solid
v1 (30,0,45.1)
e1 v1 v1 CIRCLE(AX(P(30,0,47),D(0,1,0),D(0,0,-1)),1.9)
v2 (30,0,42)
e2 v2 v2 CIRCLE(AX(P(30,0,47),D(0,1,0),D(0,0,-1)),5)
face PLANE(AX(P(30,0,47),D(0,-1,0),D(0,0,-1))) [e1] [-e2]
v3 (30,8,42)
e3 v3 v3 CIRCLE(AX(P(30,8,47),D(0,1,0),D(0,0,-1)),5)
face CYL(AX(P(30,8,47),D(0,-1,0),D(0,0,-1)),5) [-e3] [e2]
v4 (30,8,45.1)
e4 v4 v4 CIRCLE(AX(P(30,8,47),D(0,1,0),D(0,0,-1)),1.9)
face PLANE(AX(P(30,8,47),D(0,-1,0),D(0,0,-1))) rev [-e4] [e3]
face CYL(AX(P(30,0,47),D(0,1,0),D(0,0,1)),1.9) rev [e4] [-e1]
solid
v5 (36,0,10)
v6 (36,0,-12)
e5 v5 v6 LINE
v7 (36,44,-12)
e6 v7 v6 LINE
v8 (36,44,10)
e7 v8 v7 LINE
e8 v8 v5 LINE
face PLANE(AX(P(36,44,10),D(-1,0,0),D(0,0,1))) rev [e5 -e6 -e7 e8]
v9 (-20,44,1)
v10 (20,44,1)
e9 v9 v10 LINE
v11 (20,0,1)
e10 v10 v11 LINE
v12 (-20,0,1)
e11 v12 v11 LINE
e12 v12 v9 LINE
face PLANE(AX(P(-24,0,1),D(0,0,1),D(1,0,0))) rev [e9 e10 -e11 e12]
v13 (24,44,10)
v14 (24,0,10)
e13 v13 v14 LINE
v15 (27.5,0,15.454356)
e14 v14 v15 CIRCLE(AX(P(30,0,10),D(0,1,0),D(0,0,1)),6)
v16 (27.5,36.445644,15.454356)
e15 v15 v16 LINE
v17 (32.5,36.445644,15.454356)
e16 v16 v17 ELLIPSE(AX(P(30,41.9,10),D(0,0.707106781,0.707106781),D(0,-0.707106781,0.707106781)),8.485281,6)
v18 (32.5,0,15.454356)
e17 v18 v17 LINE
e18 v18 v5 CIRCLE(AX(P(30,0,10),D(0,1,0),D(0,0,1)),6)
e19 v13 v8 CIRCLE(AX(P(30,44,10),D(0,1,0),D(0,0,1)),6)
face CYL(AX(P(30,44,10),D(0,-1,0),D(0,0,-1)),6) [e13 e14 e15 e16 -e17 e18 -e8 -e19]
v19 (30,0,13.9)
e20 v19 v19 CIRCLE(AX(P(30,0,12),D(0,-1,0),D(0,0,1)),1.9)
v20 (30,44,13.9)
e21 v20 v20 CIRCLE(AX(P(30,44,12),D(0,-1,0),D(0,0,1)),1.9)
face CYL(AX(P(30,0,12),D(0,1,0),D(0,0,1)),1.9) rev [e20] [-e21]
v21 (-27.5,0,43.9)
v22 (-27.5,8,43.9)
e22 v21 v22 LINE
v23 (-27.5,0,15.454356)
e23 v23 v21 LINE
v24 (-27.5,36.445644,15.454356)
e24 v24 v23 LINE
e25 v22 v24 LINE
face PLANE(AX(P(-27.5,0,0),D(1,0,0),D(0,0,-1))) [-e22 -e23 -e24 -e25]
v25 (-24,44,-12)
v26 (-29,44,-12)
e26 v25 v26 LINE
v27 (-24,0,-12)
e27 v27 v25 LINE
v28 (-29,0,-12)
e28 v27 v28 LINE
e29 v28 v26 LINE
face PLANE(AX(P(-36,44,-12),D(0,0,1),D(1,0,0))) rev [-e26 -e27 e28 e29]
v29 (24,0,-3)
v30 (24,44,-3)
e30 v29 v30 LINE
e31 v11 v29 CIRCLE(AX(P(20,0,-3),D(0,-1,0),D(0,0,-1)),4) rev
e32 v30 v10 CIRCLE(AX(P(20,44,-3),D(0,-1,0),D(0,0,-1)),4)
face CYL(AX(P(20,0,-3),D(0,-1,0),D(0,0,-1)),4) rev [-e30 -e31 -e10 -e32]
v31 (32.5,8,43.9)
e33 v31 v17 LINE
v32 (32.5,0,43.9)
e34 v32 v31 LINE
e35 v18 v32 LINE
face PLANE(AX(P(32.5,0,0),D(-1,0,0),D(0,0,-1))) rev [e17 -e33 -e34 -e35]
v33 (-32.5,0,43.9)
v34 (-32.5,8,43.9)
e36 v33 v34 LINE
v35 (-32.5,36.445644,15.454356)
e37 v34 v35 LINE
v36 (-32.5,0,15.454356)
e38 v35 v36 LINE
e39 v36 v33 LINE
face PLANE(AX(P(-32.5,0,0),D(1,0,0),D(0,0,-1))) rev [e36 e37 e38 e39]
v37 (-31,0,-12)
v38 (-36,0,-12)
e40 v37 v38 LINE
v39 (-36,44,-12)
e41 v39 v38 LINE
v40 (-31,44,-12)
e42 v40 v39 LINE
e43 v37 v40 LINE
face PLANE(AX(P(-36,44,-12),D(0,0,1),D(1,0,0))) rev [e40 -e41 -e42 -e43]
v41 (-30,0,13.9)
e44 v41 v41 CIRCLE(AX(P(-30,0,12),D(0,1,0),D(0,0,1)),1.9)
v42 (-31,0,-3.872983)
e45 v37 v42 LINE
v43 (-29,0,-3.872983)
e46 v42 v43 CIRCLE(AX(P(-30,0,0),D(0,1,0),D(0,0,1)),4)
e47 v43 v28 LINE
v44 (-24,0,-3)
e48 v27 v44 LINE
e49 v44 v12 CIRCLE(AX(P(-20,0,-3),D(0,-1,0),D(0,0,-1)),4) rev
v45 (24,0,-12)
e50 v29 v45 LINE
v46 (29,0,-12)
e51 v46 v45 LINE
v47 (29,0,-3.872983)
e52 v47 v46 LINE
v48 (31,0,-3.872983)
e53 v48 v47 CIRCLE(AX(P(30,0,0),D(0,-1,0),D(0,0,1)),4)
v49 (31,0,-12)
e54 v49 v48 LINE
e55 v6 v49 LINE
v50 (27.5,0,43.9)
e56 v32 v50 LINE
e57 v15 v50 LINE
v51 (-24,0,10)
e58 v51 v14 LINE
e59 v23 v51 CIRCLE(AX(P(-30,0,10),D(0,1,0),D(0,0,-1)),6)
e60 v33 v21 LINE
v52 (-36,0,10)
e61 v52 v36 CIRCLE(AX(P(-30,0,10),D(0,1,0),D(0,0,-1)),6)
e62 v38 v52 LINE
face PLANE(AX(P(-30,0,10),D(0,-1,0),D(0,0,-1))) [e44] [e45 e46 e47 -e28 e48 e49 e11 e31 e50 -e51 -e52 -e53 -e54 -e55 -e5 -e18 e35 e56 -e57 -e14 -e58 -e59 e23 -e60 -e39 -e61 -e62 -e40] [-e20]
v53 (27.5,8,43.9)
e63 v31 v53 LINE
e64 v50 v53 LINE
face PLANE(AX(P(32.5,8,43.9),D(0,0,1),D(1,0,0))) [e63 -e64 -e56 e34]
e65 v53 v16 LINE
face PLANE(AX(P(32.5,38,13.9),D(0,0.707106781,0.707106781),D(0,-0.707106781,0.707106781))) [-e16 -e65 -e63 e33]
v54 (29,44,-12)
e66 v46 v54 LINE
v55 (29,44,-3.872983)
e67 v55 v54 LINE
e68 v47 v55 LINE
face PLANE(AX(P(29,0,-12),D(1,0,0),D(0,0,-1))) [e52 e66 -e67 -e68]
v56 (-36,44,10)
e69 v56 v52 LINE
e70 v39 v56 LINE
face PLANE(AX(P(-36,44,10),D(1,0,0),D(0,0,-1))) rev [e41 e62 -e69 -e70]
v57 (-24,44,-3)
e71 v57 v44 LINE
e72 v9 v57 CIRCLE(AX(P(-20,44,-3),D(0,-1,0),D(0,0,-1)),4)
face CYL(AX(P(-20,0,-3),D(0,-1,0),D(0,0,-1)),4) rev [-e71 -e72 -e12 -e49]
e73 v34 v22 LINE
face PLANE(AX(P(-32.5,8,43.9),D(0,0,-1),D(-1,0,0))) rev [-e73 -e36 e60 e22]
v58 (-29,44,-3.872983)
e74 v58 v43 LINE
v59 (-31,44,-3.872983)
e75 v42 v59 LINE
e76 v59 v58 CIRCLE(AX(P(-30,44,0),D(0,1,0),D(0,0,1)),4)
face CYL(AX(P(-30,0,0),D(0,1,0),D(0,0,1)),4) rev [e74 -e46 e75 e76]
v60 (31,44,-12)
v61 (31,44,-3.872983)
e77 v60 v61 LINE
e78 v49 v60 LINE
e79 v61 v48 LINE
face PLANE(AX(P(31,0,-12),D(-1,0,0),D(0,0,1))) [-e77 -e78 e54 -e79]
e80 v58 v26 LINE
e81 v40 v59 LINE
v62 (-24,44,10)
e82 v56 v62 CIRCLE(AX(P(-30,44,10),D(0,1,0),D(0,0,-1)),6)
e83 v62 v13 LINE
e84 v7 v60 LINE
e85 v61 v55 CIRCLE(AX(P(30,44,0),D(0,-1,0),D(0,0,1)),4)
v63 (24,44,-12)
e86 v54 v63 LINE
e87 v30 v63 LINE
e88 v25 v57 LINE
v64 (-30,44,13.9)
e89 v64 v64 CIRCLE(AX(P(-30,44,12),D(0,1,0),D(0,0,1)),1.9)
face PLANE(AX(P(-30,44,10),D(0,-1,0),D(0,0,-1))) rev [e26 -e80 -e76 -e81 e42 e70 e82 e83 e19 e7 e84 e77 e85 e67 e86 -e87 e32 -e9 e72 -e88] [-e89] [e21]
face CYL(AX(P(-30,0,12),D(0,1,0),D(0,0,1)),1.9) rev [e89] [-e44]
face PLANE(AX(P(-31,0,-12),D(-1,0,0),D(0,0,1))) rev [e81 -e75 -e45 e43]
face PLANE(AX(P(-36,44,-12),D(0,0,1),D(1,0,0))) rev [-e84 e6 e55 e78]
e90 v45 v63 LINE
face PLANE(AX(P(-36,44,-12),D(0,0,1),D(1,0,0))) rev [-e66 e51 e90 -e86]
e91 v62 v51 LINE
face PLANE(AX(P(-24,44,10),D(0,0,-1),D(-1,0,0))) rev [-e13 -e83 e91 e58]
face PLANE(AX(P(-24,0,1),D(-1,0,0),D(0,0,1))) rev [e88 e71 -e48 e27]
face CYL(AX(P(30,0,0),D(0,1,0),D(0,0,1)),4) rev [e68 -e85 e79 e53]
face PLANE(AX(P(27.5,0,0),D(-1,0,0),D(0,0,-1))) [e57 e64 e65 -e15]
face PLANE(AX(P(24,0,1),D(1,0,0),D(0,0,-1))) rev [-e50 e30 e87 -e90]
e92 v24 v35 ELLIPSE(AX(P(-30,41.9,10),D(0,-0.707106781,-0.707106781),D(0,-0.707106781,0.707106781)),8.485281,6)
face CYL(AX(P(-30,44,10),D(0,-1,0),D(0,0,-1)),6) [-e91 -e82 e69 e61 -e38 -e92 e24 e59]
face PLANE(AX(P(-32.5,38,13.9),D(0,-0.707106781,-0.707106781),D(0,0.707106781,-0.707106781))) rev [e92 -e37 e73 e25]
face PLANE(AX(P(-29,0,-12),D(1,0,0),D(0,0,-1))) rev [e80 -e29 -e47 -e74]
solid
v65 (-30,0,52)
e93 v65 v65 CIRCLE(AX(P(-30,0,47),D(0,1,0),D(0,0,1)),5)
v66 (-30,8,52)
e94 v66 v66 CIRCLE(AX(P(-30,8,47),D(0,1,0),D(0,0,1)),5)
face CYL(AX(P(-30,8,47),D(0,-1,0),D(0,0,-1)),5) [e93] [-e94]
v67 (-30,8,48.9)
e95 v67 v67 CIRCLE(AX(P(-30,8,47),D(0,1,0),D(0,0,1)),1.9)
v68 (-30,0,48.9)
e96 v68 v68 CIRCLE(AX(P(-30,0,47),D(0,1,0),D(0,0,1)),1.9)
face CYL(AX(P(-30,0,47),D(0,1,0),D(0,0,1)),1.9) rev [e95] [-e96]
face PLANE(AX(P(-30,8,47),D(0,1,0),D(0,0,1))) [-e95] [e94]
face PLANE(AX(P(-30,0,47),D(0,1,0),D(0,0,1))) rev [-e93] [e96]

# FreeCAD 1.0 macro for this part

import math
import FreeCAD as App
import Part
import Sketcher
Q = App.Units.Quantity


def edges_at(feature, points):
    """Names of the edges that pass closest to the given points."""
    edges = feature.Shape.Edges
    near = lambda p: min(range(len(edges)), key=lambda i: edges[i].distToShape(Part.Vertex(*p))[0])
    return sorted({f"Edge{near(p) + 1}" for p in points})


def add_polygon(sketch, points):
    """Adds a closed chain of lines whose ends are joined by coincident constraints."""
    first, n = sketch.GeometryCount, len(points)
    for a, b in zip(points, points[1:] + points[:1]):
        sketch.addGeometry(Part.LineSegment(App.Vector(*a, 0), App.Vector(*b, 0)), False)
    for i in range(n):
        sketch.addConstraint(Sketcher.Constraint("Coincident", first + i, 2, first + (i + 1) % n, 1))

doc = App.newDocument("Part")
body = doc.addObject("PartDesign::Body", "Body")

# Sketch on XZ plane
sketch1 = doc.addObject("Sketcher::SketchObject", "Sketch")
body.addObject(sketch1)
sketch1.AttachmentSupport = (doc.XZ_Plane, [""])
sketch1.MapMode = "FlatFace"
sketch1.addGeometry([
    Part.LineSegment(App.Vector(-24, 10, 0), App.Vector(24, 10, 0)),  # 0
    Part.ArcOfCircle(Part.Circle(App.Vector(30, 10, 0), App.Vector(0, 0, 1), 6), math.radians(0), math.radians(180)),  # 1
    Part.LineSegment(App.Vector(36, 10, 0), App.Vector(36, -12, 0)),  # 2
    Part.LineSegment(App.Vector(36, -12, 0), App.Vector(-36, -12, 0)),  # 3
    Part.LineSegment(App.Vector(-36, -12, 0), App.Vector(-36, 10, 0)),  # 4
    Part.ArcOfCircle(Part.Circle(App.Vector(-30, 10, 0), App.Vector(0, 0, 1), 6), math.radians(0), math.radians(180)),  # 5
], False)
sketch1.addConstraint([
    Sketcher.Constraint("Coincident", 0, 2, 1, 2),
    Sketcher.Constraint("Tangent", 1, 1, 2, 1),
    Sketcher.Constraint("Coincident", 2, 2, 3, 1),
    Sketcher.Constraint("Coincident", 3, 2, 4, 1),
    Sketcher.Constraint("Tangent", 4, 2, 5, 2),
    Sketcher.Constraint("Coincident", 5, 1, 0, 1),
    Sketcher.Constraint("Horizontal", 0),
    Sketcher.Constraint("Vertical", 2),
    Sketcher.Constraint("Horizontal", 3),
    Sketcher.Constraint("Vertical", 4),
    Sketcher.Constraint("Equal", 1, 5),
    Sketcher.Constraint("Symmetric", 1, 3, 5, 3, -2),
    Sketcher.Constraint("Horizontal", 5, 3, 0, 2),
    Sketcher.Constraint("Radius", 1, Q("6 mm")),
    Sketcher.Constraint("DistanceX", 0, 1, 0, 2, Q("48 mm")),
    Sketcher.Constraint("DistanceY", 2, 2, 2, 1, Q("22 mm")),
    Sketcher.Constraint("DistanceY", -1, 1, 1, 3, Q("10 mm")),
])
pad1 = doc.addObject("PartDesign::Pad", "Pad")
body.addObject(pad1)
pad1.Profile = sketch1
pad1.Length = 44
pad1.Reversed = True

# Sketch on XZ plane
sketch2 = doc.addObject("Sketcher::SketchObject", "Sketch001")
body.addObject(sketch2)
sketch2.AttachmentSupport = (doc.XZ_Plane, [""])
sketch2.MapMode = "FlatFace"
sketch2.AttachmentOffset = App.Placement(App.Vector(0, 0, -44), App.Rotation())
sketch2.addGeometry([
    Part.Circle(App.Vector(-30, 0, 0), App.Vector(0, 0, 1), 4),
    Part.Circle(App.Vector(-30, 12, 0), App.Vector(0, 0, 1), 1.9),
], False)
sketch2.addConstraint([
    Sketcher.Constraint("PointOnObject", 0, 3, -1),
    Sketcher.Constraint("Vertical", 0, 3, 1, 3),
    Sketcher.Constraint("Diameter", 0, Q("8 mm")),
    Sketcher.Constraint("Diameter", 1, Q("3.8 mm")),
    Sketcher.Constraint("DistanceX", 0, 3, -1, 1, Q("30 mm")),
    Sketcher.Constraint("DistanceY", -1, 1, 1, 3, Q("12 mm")),
])
pocket1 = doc.addObject("PartDesign::Pocket", "Pocket")
body.addObject(pocket1)
pocket1.Profile = sketch2
pocket1.Type = "ThroughAll"
pocket1.Reversed = True

# Sketch on XZ plane
sketch3 = doc.addObject("Sketcher::SketchObject", "Sketch002")
body.addObject(sketch3)
sketch3.AttachmentSupport = (doc.XZ_Plane, [""])
sketch3.MapMode = "FlatFace"
sketch3.AttachmentOffset = App.Placement(App.Vector(0, 0, -44), App.Rotation())
add_polygon(sketch3, [(-31, -12), (-31, 0), (-29, 0), (-29, -12)])  # lines 0-3
sketch3.addConstraint([
    Sketcher.Constraint("Vertical", 0),
    Sketcher.Constraint("Horizontal", 1),
    Sketcher.Constraint("Vertical", 2),
    Sketcher.Constraint("Horizontal", 3),
    Sketcher.Constraint("PointOnObject", 0, 2, -1),
    Sketcher.Constraint("DistanceX", 1, 1, 1, 2, Q("2 mm")),
    Sketcher.Constraint("DistanceY", 0, 1, 0, 2, Q("12 mm")),
    Sketcher.Constraint("DistanceX", 0, 2, -1, 1, Q("31 mm")),
])
pocket2 = doc.addObject("PartDesign::Pocket", "Pocket001")
body.addObject(pocket2)
pocket2.Profile = sketch3
pocket2.Type = "ThroughAll"
pocket2.Reversed = True
doc.recompute()

mirrored = doc.addObject("PartDesign::Mirrored", "Mirrored")
body.addObject(mirrored)
mirrored.Originals = [pocket1, pocket2]
mirrored.MirrorPlane = (doc.YZ_Plane, [""])
body.Tip = mirrored

# Sketch on XZ plane
sketch4 = doc.addObject("Sketcher::SketchObject", "Sketch003")
body.addObject(sketch4)
sketch4.AttachmentSupport = (doc.XZ_Plane, [""])
sketch4.MapMode = "FlatFace"
sketch4.AttachmentOffset = App.Placement(App.Vector(0, 0, -44), App.Rotation())
add_polygon(sketch4, [(-24, -12), (-24, 1), (24, 1), (24, -12)])  # lines 0-3
sketch4.addConstraint([
    Sketcher.Constraint("Vertical", 0),
    Sketcher.Constraint("Horizontal", 1),
    Sketcher.Constraint("Vertical", 2),
    Sketcher.Constraint("Horizontal", 3),
    Sketcher.Constraint("DistanceX", 1, 1, 1, 2, Q("48 mm")),
    Sketcher.Constraint("DistanceY", 0, 1, 0, 2, Q("13 mm")),
    Sketcher.Constraint("DistanceX", 0, 2, -1, 1, Q("24 mm")),
    Sketcher.Constraint("DistanceY", -1, 1, 0, 2, Q("1 mm")),
])
pocket3 = doc.addObject("PartDesign::Pocket", "Pocket002")
body.addObject(pocket3)
pocket3.Profile = sketch4
pocket3.Type = "ThroughAll"
pocket3.Reversed = True
doc.recompute()

fillet = doc.addObject("PartDesign::Fillet", "Fillet")
body.addObject(fillet)
fillet.Base = (pocket3, edges_at(pocket3, [(24, 22, 1), (-24, 22, 1)]))
fillet.Radius = 4

# Sketch on YZ plane
sketch5 = doc.addObject("Sketcher::SketchObject", "Sketch004")
body.addObject(sketch5)
sketch5.AttachmentSupport = (doc.YZ_Plane, [""])
sketch5.MapMode = "FlatFace"
sketch5.AttachmentOffset = App.Placement(App.Vector(0, 0, -30), App.Rotation())
add_polygon(sketch5, [(0, 14), (0, 44), (8, 44), (38, 14)])  # lines 0-3
sketch5.addConstraint([
    Sketcher.Constraint("Vertical", 0),
    Sketcher.Constraint("Horizontal", 1),
    Sketcher.Constraint("Horizontal", 3),
    Sketcher.Constraint("PointOnObject", 0, 2, -2),
    Sketcher.Constraint("DistanceX", 1, 1, 1, 2, Q("8 mm")),
    Sketcher.Constraint("DistanceX", 3, 2, 3, 1, Q("38 mm")),
    Sketcher.Constraint("DistanceY", 0, 1, 0, 2, Q("30 mm")),
    Sketcher.Constraint("DistanceY", -1, 1, 0, 2, Q("43.9 mm")),
])
pad2 = doc.addObject("PartDesign::Pad", "Pad001")
body.addObject(pad2)
pad2.Profile = sketch5
pad2.Length = 5
pad2.Midplane = True
doc.recompute()

mirrored2 = doc.addObject("PartDesign::Mirrored", "Mirrored001")
body.addObject(mirrored2)
mirrored2.Originals = [pad2]
mirrored2.MirrorPlane = (doc.YZ_Plane, [""])
body.Tip = mirrored2
body2 = doc.addObject("PartDesign::Body", "Body001")

# Sketch on XZ plane
sketch6 = doc.addObject("Sketcher::SketchObject", "Sketch005")
body2.addObject(sketch6)
sketch6.AttachmentSupport = (doc.getObject("XZ_Plane001"), [""])
sketch6.MapMode = "FlatFace"
sketch6.addGeometry(Part.Circle(App.Vector(-30, 47, 0), App.Vector(0, 0, 1), 5), False)
sketch6.addConstraint([
    Sketcher.Constraint("Diameter", 0, Q("10 mm")),
    Sketcher.Constraint("DistanceX", 0, 3, -1, 1, Q("30 mm")),
    Sketcher.Constraint("DistanceY", -1, 1, 0, 3, Q("47 mm")),
])
pad3 = doc.addObject("PartDesign::Pad", "Pad002")
body2.addObject(pad3)
pad3.Profile = sketch6
pad3.Length = 8
pad3.Reversed = True
body3 = doc.addObject("PartDesign::Body", "Body002")

# Sketch on XZ plane
sketch7 = doc.addObject("Sketcher::SketchObject", "Sketch006")
body3.addObject(sketch7)
sketch7.AttachmentSupport = (doc.getObject("XZ_Plane002"), [""])
sketch7.MapMode = "FlatFace"
sketch7.addGeometry(Part.Circle(App.Vector(30, 47, 0), App.Vector(0, 0, 1), 5), False)
sketch7.addConstraint([
    Sketcher.Constraint("Diameter", 0, Q("10 mm")),
    Sketcher.Constraint("DistanceX", -1, 1, 0, 3, Q("30 mm")),
    Sketcher.Constraint("DistanceY", -1, 1, 0, 3, Q("47 mm")),
])
pad4 = doc.addObject("PartDesign::Pad", "Pad003")
body3.addObject(pad4)
pad4.Profile = sketch7
pad4.Length = 8
pad4.Reversed = True
body4 = doc.addObject("PartDesign::Body", "Body003")
body4.AllowCompound = True

# Sketch on XZ plane
sketch8 = doc.addObject("Sketcher::SketchObject", "Sketch007")
body4.addObject(sketch8)
sketch8.AttachmentSupport = (doc.getObject("XZ_Plane003"), [""])
sketch8.MapMode = "FlatFace"
sketch8.AttachmentOffset = App.Placement(App.Vector(0, 0, -8), App.Rotation())
sketch8.addGeometry([
    Part.Circle(App.Vector(-30, 47, 0), App.Vector(0, 0, 1), 1.9),
    Part.Circle(App.Vector(30, 47, 0), App.Vector(0, 0, 1), 1.9),
], False)
sketch8.addConstraint([
    Sketcher.Constraint("Equal", 0, 1),
    Sketcher.Constraint("Symmetric", 0, 3, 1, 3, -2),
    Sketcher.Constraint("Diameter", 0, Q("3.8 mm")),
    Sketcher.Constraint("DistanceX", 0, 3, -1, 1, Q("30 mm")),
    Sketcher.Constraint("DistanceY", -1, 1, 0, 3, Q("47 mm")),
])
pad5 = doc.addObject("PartDesign::Pad", "Pad004")
body4.addObject(pad5)
pad5.Profile = sketch8
pad5.Length = 73.773622
doc.recompute()

body5 = doc.addObject("PartDesign::Body", "Body004")
body5.BaseFeature = body4
boolean = doc.addObject("PartDesign::Boolean", "Boolean")
body2.addObject(boolean)
boolean.Type = "Cut"
boolean.addObjects([body5])
doc.recompute()

boolean2 = doc.addObject("PartDesign::Boolean", "Boolean001")
body3.addObject(boolean2)
boolean2.Type = "Cut"
boolean2.addObjects([body4])

doc.recompute()
